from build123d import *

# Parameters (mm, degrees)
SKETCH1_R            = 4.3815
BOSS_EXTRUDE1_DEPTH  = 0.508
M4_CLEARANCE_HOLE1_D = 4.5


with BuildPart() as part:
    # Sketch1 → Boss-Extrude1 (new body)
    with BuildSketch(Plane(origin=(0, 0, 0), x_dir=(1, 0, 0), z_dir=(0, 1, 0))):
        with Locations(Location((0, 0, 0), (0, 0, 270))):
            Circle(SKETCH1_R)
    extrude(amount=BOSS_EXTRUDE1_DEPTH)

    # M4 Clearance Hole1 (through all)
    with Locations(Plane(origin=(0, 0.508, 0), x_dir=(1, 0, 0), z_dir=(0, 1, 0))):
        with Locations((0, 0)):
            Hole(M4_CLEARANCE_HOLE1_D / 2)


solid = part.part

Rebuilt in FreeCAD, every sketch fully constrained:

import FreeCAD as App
import Part
import Sketcher

V = App.Vector
Q = App.Units.Quantity

doc = App.newDocument("Part")
body = doc.addObject("PartDesign::Body", "Body")

# Sketch on XZ plane
sketch1 = body.newObject("Sketcher::SketchObject", "Sketch")
sketch1.AttachmentSupport = (doc.getObject("XZ_Plane"), [""])
sketch1.MapMode = "FlatFace"
sketch1.addGeometry(Part.Circle(V(0, 0, 0), V(0, 0, 1), 4.4), False)
sketch1.addConstraint(Sketcher.Constraint("Coincident", 0, 3, -1, 1))
sketch1.addConstraint(Sketcher.Constraint("Diameter", 0, Q("0.345 in")))
pad1 = body.newObject("PartDesign::Pad", "Pad")
pad1.Profile = sketch1
pad1.Length = Q("0.02 in")
pad1.Reversed = True

# Sketch on XZ plane
sketch2 = body.newObject("Sketcher::SketchObject", "Sketch001")
sketch2.AttachmentSupport = (doc.getObject("XZ_Plane"), [""])
sketch2.MapMode = "FlatFace"
sketch2.AttachmentOffset = App.Placement(V(0, 0, -0.02 * 25.4), App.Rotation())
sketch2.addGeometry(Part.Circle(V(0, 0, 0), V(0, 0, 1), 2.2), False)
sketch2.addConstraint(Sketcher.Constraint("Coincident", 0, 3, -1, 1))
sketch2.addConstraint(Sketcher.Constraint("Diameter", 0, Q("4.5 mm")))
doc.recompute()
hole = body.newObject("PartDesign::Hole", "Hole")
hole.Profile = sketch2
hole.ThreadType = "None"
hole.Diameter = 4.5
hole.DepthType = "ThroughAll"
hole.Reversed = True

doc.recompute()
